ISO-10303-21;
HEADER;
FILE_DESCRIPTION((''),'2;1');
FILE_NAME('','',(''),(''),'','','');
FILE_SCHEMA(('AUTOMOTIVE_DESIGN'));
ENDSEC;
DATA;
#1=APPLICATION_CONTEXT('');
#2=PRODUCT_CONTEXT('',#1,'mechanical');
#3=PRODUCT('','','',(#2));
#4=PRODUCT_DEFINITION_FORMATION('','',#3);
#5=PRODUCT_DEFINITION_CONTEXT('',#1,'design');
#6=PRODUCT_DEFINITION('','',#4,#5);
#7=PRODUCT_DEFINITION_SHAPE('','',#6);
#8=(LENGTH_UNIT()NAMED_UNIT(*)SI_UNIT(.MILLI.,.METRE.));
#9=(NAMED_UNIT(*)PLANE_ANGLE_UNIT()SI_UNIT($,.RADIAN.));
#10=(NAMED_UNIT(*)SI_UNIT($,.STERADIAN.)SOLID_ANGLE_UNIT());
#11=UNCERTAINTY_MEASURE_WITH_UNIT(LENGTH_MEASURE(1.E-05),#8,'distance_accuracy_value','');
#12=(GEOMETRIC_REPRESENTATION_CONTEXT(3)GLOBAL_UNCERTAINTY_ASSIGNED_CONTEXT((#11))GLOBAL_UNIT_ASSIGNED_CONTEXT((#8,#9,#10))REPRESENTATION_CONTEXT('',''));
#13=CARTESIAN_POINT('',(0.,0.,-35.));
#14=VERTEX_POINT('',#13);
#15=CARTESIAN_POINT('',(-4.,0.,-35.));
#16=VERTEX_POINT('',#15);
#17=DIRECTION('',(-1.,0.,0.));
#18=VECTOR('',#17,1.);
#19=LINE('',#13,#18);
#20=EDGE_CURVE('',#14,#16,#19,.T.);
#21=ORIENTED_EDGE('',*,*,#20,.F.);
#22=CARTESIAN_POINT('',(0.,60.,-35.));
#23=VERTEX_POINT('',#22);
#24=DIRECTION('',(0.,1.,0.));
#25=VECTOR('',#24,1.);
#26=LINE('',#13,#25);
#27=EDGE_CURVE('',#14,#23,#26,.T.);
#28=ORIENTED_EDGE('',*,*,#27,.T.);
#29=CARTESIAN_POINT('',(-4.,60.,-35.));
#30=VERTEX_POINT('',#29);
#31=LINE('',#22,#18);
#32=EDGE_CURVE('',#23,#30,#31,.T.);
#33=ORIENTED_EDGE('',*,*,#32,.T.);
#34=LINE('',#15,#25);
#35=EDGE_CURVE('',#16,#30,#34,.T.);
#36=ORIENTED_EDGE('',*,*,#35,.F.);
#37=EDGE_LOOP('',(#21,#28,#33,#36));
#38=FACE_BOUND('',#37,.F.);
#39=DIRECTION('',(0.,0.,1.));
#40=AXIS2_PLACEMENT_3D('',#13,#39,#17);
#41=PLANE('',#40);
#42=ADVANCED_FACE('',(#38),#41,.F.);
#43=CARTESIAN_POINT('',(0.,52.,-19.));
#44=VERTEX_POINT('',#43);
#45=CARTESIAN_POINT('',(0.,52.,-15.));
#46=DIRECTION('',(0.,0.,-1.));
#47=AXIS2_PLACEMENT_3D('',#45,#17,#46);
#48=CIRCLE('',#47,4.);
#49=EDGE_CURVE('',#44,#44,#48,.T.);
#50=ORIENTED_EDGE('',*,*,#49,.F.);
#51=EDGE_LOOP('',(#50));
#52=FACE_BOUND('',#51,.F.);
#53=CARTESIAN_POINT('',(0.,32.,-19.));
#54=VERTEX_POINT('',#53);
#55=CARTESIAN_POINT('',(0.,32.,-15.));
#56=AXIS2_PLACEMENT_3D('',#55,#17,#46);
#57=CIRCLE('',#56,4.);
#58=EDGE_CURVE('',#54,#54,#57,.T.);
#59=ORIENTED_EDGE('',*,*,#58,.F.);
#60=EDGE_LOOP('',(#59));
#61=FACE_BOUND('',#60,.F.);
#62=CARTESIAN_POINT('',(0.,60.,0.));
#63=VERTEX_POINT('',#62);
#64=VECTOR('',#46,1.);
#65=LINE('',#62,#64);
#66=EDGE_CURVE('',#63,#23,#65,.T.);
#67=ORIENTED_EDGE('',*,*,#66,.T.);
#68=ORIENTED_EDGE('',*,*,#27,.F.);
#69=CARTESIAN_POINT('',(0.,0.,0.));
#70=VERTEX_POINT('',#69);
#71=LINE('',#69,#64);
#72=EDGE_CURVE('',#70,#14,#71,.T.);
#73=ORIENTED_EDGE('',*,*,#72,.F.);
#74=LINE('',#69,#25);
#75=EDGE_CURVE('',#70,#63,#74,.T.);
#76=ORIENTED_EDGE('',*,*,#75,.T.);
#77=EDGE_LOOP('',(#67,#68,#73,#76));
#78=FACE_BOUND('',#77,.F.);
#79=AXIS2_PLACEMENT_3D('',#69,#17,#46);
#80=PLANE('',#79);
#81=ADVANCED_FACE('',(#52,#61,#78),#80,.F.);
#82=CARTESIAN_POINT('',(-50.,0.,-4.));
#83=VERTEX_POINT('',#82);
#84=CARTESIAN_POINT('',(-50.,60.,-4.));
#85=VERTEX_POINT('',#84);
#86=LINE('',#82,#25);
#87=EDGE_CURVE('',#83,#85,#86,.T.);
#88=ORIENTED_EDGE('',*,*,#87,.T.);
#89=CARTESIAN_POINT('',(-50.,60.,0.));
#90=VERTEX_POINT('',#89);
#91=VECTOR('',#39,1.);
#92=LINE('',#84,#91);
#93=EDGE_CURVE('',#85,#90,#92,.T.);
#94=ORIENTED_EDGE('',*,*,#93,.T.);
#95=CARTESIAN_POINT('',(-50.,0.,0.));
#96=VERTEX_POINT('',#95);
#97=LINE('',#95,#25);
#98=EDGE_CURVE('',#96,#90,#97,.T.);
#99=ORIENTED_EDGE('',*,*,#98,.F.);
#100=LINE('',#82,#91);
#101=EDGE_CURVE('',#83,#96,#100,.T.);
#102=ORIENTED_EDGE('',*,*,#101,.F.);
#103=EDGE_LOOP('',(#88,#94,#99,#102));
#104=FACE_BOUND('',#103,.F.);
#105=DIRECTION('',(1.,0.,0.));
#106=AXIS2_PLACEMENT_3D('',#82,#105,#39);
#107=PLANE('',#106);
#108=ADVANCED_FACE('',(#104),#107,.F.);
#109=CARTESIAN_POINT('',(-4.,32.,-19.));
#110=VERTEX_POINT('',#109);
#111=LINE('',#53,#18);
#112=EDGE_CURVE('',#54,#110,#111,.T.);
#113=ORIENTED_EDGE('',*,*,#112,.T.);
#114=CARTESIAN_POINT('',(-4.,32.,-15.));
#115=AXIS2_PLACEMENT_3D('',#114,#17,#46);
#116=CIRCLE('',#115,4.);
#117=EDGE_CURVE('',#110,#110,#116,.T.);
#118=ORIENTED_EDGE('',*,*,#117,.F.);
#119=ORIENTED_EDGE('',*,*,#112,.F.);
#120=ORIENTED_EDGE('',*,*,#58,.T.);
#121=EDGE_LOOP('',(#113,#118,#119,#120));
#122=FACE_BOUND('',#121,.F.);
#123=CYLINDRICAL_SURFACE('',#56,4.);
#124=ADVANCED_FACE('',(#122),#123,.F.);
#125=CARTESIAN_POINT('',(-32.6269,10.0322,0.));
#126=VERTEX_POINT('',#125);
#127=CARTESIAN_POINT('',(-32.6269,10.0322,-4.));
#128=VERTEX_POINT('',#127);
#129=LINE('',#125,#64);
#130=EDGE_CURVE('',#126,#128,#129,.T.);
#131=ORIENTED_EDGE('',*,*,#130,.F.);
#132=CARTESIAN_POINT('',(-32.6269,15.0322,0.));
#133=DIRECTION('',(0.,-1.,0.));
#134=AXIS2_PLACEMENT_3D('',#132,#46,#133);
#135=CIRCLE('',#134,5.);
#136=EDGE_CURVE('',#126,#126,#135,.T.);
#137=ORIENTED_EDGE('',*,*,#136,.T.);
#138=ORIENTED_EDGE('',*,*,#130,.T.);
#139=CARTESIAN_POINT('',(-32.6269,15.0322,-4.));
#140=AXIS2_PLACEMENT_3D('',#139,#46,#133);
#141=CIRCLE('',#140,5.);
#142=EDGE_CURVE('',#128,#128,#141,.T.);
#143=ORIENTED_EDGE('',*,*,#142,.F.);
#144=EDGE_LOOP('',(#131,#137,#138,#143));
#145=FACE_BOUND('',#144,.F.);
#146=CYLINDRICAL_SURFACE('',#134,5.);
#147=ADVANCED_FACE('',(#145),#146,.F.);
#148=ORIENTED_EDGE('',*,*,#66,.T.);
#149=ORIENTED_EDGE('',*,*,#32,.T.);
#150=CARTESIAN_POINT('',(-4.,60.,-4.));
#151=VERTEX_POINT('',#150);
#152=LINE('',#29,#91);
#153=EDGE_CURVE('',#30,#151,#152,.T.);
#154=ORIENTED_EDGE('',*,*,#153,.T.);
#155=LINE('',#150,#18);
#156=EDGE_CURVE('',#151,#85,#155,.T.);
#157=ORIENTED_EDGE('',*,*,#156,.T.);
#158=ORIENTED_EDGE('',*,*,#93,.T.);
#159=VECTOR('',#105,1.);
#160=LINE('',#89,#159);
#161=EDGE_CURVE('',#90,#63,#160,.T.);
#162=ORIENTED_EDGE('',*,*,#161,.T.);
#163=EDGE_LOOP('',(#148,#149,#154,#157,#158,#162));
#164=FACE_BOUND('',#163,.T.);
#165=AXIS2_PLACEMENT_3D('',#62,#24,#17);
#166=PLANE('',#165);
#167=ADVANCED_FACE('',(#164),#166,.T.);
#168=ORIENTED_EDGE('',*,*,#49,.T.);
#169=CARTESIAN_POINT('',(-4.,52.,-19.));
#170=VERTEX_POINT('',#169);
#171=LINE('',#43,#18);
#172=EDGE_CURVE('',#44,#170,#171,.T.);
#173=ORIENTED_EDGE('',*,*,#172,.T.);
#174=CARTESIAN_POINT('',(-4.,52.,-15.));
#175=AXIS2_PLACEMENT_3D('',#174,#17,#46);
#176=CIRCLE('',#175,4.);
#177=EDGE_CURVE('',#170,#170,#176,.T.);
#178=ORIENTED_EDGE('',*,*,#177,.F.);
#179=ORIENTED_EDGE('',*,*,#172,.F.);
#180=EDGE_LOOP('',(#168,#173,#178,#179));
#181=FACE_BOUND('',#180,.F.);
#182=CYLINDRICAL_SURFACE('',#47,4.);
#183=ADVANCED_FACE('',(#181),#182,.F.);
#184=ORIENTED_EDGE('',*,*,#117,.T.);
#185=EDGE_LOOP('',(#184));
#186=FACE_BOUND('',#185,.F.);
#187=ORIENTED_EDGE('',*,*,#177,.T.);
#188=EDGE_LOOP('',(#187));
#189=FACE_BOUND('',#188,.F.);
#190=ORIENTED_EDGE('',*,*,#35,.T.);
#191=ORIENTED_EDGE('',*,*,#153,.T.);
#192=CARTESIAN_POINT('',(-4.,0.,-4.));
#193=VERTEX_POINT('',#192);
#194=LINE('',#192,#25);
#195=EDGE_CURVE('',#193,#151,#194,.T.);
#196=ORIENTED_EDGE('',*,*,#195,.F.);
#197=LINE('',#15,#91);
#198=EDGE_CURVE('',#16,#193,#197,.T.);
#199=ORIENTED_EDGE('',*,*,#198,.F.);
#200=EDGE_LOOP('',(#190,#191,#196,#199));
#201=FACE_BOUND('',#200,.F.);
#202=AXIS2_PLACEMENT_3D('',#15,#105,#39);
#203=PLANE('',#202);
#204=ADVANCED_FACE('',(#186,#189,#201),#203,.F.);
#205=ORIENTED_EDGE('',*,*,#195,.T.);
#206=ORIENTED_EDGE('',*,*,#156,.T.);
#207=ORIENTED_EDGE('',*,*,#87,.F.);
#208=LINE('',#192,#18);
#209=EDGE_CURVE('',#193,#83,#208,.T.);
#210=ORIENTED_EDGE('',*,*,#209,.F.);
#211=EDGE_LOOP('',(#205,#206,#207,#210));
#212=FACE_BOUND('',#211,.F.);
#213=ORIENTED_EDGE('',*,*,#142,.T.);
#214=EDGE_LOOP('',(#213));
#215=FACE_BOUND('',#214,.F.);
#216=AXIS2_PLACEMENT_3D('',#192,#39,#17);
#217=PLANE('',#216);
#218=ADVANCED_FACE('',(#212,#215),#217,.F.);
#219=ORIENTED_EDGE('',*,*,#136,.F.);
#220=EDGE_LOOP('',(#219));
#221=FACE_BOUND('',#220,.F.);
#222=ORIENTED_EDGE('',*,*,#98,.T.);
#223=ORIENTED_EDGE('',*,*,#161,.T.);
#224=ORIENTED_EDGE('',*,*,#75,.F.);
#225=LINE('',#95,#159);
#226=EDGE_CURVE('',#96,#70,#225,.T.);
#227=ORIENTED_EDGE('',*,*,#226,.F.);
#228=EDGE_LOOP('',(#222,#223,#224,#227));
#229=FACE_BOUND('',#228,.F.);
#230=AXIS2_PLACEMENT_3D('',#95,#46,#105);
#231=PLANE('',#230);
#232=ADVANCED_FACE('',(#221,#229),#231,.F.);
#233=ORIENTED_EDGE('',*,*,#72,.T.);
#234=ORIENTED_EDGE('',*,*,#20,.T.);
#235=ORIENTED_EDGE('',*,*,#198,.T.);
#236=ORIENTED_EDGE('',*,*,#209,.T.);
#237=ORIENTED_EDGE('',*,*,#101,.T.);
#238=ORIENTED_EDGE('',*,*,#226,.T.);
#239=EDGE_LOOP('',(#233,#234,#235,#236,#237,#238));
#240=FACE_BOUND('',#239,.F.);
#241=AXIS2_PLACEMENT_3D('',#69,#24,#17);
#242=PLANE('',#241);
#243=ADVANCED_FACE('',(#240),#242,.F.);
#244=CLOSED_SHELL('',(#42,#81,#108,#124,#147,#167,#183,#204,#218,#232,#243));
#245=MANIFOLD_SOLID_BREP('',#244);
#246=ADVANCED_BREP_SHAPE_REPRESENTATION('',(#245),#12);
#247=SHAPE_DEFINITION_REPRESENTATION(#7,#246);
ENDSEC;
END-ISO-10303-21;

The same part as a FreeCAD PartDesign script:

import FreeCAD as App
import Part
import Sketcher
from FreeCAD import Vector
Q = App.Units.Quantity


def add_polygon(sketch, points):
    """Adds a closed chain of lines whose ends are joined by coincident constraints."""
    first, n = sketch.GeometryCount, len(points)
    for a, b in zip(points, points[1:] + points[:1]):
        sketch.addGeometry(Part.LineSegment(App.Vector(*a, 0), App.Vector(*b, 0)), False)
    for i in range(n):
        sketch.addConstraint(Sketcher.Constraint("Coincident", first + i, 2, first + (i + 1) % n, 1))

doc = App.newDocument("Part")
params = doc.addObject("Spreadsheet::Sheet", "Params")
for row, (alias, value) in enumerate([
    ("sketch1_width", "4 mm"),
    ("sketch1_width2", "46 mm"),
    ("sketch1_height", "35 mm"),
    ("pad1_length", "60 mm"),
    ("sketch2_diameter", "10 mm"),
    ("hole_diameter", "10 mm"),
    ("sketch3_diameter", "8 mm"),
    ("hole2_diameter", "8 mm"),
], start=1):
    params.set(f"A{row}", alias)
    params.set(f"B{row}", "=" + value)
    params.setAlias(f"B{row}", alias)

body = doc.addObject("PartDesign::Body", "Body")

# Sketch on XZ plane
sketch1 = body.newObject("Sketcher::SketchObject", "Sketch")
sketch1.AttachmentSupport = (doc.getObject("XZ_Plane"), [""])
sketch1.MapMode = "FlatFace"
add_polygon(sketch1, [(-50, 0), (0, 0), (0, -35), (-4, -35), (-4, -4), (-50, -4)])  # lines 0-5
sketch1.addConstraint([
    Sketcher.Constraint("Horizontal", 0),
    Sketcher.Constraint("Vertical", 1),
    Sketcher.Constraint("Horizontal", 2),
    Sketcher.Constraint("Vertical", 3),
    Sketcher.Constraint("Horizontal", 4),
    Sketcher.Constraint("Vertical", 5),
    Sketcher.Constraint("Coincident", 0, 2, -1, 1),
    Sketcher.Constraint("Equal", 2, 5),
    Sketcher.Constraint("DistanceX", 2, 2, 2, 1, Q("4 mm")),
    Sketcher.Constraint("DistanceX", 4, 2, 4, 1, Q("46 mm")),
    Sketcher.Constraint("DistanceY", 1, 2, 1, 1, Q("35 mm")),
])
sketch1.setExpression("Constraints[14]", "Params.sketch1_width")
sketch1.setExpression("Constraints[15]", "Params.sketch1_width2")
sketch1.setExpression("Constraints[16]", "Params.sketch1_height")
pad1 = body.newObject("PartDesign::Pad", "Pad")
pad1.Profile = sketch1
pad1.setExpression("Length", "Params.pad1_length")
pad1.Reversed = True

# Sketch on XY plane
sketch2 = body.newObject("Sketcher::SketchObject", "Sketch001")
sketch2.AttachmentSupport = (doc.getObject("XY_Plane"), [""])
sketch2.MapMode = "FlatFace"
sketch2.addGeometry(Part.Circle(Vector(-32.6269, 15.0322, 0), Vector(0, 0, 1), 5), False)
sketch2.addConstraint([
    Sketcher.Constraint("Diameter", 0, Q("10 mm")),
    Sketcher.Constraint("DistanceX", 0, 3, -1, 1, Q("32.627 mm")),
    Sketcher.Constraint("DistanceY", -1, 1, 0, 3, Q("15.0322 mm")),
])
sketch2.setExpression("Constraints[0]", "Params.sketch2_diameter")
doc.recompute()
hole = body.newObject("PartDesign::Hole", "Hole")
hole.Profile = sketch2
hole.ThreadType = "None"
hole.setExpression("Diameter", "Params.hole_diameter")
hole.DepthType = "ThroughAll"

# Sketch on YZ plane
sketch3 = body.newObject("Sketcher::SketchObject", "Sketch002")
sketch3.AttachmentSupport = (doc.getObject("YZ_Plane"), [""])
sketch3.MapMode = "FlatFace"
sketch3.addGeometry([
    Part.Circle(Vector(32, -15, 0), Vector(0, 0, 1), 4),
    Part.Circle(Vector(52, -15, 0), Vector(0, 0, 1), 4),
], False)
sketch3.addConstraint([
    Sketcher.Constraint("Equal", 0, 1),
    Sketcher.Constraint("Horizontal", 0, 3, 1, 3),
    Sketcher.Constraint("Diameter", 0, Q("8 mm")),
    Sketcher.Constraint("DistanceX", -1, 1, 0, 3, Q("32 mm")),
    Sketcher.Constraint("DistanceY", 0, 3, -1, 1, Q("15 mm")),
    Sketcher.Constraint("DistanceX", -1, 1, 1, 3, Q("52 mm")),
])
sketch3.setExpression("Constraints[2]", "Params.sketch3_diameter")
doc.recompute()
hole2 = body.newObject("PartDesign::Hole", "Hole001")
hole2.Profile = sketch3
hole2.ThreadType = "None"
hole2.setExpression("Diameter", "Params.hole2_diameter")
hole2.DepthType = "ThroughAll"

doc.recompute()
